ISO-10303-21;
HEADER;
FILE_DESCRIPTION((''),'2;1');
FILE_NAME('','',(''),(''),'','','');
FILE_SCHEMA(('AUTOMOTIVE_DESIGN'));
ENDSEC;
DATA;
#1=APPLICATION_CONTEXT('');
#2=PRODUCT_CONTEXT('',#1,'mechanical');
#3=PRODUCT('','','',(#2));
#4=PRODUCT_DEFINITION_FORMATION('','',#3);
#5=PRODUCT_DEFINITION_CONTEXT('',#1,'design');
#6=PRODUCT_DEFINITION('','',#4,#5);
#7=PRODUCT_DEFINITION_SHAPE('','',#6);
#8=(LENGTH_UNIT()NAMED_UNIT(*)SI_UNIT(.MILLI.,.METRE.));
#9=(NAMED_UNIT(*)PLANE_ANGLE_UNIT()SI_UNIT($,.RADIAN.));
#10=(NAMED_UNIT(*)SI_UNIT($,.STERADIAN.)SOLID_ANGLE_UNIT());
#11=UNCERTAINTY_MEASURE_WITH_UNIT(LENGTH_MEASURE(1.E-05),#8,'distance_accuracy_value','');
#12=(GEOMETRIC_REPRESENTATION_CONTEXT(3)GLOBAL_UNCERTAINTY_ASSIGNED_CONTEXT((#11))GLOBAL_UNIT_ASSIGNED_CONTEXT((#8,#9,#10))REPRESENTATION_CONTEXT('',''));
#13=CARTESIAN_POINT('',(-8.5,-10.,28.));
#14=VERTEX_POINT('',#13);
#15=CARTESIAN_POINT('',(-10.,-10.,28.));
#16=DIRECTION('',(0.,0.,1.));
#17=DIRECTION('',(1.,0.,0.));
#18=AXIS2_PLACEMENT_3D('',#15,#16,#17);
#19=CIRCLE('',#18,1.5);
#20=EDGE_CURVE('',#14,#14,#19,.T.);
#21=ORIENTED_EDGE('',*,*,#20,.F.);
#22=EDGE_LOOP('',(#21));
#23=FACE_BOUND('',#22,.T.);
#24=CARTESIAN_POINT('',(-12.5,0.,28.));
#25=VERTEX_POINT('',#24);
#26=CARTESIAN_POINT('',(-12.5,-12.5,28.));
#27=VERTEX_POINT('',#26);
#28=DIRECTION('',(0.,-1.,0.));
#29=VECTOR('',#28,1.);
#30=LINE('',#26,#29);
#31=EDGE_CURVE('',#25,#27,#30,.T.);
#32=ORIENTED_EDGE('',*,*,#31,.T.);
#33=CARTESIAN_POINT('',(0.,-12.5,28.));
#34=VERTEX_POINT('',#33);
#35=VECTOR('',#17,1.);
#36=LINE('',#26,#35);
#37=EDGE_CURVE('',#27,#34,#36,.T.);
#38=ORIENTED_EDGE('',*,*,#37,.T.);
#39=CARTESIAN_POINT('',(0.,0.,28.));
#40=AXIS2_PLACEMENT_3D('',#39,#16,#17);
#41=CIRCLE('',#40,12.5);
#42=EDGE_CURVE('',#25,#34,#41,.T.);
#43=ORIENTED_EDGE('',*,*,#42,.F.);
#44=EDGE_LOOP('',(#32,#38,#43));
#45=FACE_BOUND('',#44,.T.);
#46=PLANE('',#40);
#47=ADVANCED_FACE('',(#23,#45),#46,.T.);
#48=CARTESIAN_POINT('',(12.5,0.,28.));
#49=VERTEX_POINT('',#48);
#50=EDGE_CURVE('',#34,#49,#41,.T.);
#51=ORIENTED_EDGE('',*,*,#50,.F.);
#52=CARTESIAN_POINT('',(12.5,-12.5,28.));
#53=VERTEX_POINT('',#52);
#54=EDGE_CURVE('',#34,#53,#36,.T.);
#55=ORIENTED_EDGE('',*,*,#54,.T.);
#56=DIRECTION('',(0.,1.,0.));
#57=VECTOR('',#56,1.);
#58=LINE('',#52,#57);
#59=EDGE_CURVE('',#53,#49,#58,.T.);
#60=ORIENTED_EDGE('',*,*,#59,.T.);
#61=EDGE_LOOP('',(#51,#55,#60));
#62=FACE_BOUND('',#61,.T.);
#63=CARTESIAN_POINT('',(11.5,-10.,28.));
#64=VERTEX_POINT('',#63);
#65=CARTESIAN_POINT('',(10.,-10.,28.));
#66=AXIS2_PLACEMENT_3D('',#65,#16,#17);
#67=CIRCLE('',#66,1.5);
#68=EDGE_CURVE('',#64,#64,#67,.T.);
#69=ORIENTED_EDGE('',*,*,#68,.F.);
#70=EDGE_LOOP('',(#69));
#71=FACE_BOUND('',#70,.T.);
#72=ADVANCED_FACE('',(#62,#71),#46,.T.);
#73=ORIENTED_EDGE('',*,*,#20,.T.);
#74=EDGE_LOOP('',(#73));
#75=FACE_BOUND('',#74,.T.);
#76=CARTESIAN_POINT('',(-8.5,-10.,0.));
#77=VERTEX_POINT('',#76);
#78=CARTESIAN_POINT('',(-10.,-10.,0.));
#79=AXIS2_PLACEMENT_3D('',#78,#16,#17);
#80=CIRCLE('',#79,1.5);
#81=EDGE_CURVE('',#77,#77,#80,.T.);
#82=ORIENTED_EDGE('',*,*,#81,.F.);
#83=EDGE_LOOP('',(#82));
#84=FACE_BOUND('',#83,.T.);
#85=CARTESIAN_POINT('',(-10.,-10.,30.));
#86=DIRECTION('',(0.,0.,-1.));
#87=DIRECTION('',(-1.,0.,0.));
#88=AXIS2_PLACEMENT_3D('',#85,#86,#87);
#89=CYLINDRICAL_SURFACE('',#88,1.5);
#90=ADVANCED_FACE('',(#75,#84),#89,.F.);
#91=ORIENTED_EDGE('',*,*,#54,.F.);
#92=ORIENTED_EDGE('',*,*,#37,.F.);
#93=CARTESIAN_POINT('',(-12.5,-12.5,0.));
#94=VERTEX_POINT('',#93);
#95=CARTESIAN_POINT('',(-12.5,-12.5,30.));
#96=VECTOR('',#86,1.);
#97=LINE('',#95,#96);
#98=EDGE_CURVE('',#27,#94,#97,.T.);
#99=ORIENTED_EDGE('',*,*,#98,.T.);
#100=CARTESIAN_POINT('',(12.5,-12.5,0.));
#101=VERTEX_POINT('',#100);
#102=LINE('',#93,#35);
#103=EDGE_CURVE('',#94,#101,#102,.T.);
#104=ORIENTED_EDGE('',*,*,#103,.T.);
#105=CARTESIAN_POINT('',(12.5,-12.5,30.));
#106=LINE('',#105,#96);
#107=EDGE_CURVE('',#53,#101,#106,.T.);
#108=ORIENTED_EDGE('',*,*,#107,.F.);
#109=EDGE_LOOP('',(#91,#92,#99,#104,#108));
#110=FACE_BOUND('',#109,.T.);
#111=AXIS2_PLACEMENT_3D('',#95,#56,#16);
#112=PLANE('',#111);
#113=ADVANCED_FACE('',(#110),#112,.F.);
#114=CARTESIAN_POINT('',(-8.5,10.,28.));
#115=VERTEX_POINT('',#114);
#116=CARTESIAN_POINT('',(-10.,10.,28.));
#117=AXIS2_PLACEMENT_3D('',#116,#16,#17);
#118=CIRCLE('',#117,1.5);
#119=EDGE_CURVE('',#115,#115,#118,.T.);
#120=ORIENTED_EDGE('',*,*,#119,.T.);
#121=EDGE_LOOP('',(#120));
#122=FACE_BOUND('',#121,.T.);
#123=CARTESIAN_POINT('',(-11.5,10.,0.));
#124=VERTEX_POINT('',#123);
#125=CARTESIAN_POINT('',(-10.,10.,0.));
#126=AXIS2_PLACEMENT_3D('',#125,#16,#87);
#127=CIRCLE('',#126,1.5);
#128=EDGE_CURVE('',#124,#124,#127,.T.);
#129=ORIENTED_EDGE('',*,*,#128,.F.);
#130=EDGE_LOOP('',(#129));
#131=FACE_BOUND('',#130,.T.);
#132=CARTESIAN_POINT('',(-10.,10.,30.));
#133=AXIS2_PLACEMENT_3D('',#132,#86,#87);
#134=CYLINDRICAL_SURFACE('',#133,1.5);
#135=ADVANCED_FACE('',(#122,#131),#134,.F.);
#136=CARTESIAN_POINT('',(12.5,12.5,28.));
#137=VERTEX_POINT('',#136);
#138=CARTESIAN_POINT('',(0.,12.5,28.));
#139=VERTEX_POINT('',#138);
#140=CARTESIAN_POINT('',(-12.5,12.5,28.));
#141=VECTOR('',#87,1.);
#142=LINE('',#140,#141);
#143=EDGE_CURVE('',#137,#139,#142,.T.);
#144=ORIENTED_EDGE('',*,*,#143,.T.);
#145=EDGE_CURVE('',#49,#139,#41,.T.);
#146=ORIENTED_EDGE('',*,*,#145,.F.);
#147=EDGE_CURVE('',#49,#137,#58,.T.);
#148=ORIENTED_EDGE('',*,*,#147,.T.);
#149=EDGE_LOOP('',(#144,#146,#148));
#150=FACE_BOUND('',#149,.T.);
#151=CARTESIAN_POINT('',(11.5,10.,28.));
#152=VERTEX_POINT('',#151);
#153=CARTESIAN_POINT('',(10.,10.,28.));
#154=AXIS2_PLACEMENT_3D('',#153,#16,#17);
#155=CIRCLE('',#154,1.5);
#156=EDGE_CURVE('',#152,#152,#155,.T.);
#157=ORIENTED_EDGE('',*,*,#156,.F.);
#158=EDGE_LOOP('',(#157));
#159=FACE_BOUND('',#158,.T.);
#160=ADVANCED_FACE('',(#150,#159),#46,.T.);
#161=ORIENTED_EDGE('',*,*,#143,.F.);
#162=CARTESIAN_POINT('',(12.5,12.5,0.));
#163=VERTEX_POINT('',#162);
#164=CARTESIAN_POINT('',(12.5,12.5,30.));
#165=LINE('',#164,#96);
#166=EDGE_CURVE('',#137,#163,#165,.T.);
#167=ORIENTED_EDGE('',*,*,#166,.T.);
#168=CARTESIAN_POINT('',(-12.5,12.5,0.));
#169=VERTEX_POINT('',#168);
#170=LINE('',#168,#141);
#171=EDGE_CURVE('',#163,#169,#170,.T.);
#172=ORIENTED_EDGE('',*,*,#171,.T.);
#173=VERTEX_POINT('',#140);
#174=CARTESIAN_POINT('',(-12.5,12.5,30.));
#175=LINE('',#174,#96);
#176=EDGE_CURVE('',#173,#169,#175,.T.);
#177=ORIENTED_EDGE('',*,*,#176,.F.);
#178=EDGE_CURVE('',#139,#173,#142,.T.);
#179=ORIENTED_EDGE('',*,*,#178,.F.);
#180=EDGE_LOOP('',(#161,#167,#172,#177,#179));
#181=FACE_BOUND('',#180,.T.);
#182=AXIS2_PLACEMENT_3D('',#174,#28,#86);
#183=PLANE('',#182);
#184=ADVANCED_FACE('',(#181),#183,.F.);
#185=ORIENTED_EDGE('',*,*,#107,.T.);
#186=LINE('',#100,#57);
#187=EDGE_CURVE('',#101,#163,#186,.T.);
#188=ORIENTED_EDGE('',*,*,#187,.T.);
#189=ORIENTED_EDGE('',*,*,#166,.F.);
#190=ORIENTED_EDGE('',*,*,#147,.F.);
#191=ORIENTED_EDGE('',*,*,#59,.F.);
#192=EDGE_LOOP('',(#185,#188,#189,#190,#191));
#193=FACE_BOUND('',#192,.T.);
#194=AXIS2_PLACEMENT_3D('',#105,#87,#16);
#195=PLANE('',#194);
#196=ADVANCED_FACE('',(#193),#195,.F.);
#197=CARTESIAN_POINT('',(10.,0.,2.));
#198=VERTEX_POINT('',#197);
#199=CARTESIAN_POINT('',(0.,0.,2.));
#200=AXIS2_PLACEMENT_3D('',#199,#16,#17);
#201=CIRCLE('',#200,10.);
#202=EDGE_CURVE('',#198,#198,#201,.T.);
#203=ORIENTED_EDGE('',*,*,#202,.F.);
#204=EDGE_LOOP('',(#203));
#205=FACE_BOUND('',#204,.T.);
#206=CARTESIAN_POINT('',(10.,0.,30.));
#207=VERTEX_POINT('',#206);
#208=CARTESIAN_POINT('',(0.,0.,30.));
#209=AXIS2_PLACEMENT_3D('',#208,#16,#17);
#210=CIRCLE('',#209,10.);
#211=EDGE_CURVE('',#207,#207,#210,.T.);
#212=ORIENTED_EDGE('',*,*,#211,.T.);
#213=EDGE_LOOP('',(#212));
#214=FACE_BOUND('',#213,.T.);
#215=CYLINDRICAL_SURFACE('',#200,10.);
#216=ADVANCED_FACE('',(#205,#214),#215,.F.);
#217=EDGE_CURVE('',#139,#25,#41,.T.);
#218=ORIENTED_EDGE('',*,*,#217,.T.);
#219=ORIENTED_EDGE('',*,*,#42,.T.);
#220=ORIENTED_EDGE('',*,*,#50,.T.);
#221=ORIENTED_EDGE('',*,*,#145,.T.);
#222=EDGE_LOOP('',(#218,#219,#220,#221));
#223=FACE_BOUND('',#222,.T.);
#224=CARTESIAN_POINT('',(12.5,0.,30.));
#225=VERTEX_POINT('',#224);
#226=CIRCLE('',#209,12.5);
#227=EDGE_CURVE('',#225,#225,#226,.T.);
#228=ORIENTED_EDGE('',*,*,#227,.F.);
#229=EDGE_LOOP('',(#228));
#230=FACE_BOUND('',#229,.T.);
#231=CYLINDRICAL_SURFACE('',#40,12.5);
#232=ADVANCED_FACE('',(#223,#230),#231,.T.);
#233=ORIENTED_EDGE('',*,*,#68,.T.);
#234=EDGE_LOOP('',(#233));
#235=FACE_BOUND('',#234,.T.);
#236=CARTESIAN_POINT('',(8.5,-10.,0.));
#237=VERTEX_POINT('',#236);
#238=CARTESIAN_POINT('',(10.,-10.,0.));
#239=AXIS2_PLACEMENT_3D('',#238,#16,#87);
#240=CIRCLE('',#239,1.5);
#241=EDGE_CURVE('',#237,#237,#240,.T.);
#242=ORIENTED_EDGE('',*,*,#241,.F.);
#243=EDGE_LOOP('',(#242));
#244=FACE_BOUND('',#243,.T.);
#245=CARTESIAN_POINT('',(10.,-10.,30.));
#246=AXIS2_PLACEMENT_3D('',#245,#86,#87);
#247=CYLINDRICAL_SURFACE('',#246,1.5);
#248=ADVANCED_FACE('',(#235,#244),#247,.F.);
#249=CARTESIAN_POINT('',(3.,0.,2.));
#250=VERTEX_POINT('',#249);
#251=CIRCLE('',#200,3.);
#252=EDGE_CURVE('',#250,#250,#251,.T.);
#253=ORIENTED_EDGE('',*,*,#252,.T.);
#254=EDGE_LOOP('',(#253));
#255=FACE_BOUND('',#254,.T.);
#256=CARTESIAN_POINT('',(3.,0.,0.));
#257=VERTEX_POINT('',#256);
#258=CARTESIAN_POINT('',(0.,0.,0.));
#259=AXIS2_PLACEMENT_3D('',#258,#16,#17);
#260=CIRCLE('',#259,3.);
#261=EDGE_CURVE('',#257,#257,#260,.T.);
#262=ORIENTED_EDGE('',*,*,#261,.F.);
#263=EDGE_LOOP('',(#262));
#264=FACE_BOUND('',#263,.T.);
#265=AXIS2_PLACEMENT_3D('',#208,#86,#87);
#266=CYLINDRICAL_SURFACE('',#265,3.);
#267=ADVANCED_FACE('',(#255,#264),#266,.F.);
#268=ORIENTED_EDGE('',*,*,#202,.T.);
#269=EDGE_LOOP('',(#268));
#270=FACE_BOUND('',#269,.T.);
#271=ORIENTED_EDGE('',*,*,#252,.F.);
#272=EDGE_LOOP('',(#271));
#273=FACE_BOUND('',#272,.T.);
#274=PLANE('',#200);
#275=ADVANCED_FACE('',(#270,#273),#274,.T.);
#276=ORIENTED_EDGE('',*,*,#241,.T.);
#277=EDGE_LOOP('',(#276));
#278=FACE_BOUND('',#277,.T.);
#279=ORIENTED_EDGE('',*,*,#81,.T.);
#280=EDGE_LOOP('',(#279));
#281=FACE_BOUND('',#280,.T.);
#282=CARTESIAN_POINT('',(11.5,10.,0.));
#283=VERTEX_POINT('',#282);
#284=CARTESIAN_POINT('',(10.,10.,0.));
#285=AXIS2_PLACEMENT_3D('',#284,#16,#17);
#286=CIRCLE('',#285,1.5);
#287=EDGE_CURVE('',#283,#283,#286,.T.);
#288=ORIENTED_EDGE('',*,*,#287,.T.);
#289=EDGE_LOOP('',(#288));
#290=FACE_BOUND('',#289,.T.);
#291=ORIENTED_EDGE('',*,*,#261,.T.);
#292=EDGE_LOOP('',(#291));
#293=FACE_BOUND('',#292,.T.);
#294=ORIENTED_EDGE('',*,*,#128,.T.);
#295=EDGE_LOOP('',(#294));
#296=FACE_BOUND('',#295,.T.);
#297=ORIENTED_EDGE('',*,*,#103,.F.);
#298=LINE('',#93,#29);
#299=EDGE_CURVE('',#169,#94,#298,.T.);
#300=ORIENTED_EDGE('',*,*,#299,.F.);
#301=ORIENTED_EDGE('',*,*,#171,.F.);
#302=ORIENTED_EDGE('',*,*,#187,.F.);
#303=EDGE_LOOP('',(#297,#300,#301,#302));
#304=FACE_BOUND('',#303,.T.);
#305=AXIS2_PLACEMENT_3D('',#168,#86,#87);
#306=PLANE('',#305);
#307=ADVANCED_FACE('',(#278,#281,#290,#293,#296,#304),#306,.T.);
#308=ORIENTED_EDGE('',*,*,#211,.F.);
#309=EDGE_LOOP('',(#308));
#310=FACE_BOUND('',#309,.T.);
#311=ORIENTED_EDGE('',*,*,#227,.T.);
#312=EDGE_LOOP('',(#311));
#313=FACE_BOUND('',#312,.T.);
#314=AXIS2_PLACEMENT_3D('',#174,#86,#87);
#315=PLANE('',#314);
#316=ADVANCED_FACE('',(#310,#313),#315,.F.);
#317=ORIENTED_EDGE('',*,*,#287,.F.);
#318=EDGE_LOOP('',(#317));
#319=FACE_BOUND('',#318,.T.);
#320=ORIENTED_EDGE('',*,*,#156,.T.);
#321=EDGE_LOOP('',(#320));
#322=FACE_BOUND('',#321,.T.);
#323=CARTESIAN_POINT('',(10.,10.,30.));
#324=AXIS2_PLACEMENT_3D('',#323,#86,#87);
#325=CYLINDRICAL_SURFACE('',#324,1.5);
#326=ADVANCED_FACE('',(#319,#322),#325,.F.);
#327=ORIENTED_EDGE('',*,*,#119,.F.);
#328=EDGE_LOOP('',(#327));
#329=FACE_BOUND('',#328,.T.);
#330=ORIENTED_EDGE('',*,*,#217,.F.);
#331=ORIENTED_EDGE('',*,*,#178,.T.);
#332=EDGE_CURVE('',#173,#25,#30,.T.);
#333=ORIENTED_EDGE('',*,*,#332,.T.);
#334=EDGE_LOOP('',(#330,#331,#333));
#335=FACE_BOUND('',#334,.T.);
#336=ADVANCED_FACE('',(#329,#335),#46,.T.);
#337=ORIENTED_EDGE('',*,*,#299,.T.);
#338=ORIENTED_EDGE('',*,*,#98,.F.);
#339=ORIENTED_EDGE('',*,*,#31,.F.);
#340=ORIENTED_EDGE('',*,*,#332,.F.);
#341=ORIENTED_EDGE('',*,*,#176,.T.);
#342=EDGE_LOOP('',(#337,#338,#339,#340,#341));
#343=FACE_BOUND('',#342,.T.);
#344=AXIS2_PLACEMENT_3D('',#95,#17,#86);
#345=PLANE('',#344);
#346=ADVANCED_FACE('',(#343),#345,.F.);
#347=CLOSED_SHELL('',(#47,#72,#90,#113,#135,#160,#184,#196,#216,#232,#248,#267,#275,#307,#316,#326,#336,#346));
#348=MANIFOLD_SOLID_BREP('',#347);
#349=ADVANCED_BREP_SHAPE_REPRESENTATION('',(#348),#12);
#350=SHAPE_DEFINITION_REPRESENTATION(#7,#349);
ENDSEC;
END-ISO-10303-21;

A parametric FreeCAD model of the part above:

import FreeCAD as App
import Part
import Sketcher

V = App.Vector
Q = App.Units.Quantity

doc = App.newDocument("Part")
body = doc.addObject("PartDesign::Body", "Body")

sketch1 = body.newObject("Sketcher::SketchObject", "Sketch")
sketch1.AttachmentSupport = (doc.getObject("XY_Plane"), [""])
sketch1.MapMode = "FlatFace"
sketch1.addGeometry([
    Part.LineSegment(V(-12.5, 12.5, 0), V(-12.5, -12.5, 0)),
    Part.LineSegment(V(-12.5, -12.5, 0), V(12.5, -12.5, 0)),
    Part.LineSegment(V(12.5, -12.5, 0), V(12.5, 12.5, 0)),
    Part.LineSegment(V(12.5, 12.5, 0), V(-12.5, 12.5, 0)),
    Part.Circle(V(-10, -10, 0), V(0, 0, 1), 1.5),
    Part.Circle(V(10, -10, 0), V(0, 0, 1), 1.5),
    Part.Circle(V(-10, 10, 0), V(0, 0, 1), 1.5),
    Part.Circle(V(0, 0, 0), V(0, 0, 1), 3),
    Part.Circle(V(10, 10, 0), V(0, 0, 1), 1.5),
], False)
sketch1.addConstraint([
    Sketcher.Constraint("Coincident", 0, 2, 1, 1),
    Sketcher.Constraint("Coincident", 1, 2, 2, 1),
    Sketcher.Constraint("Coincident", 2, 2, 3, 1),
    Sketcher.Constraint("Coincident", 3, 2, 0, 1),
    Sketcher.Constraint("Vertical", 0),
    Sketcher.Constraint("Horizontal", 1),
    Sketcher.Constraint("Vertical", 2),
    Sketcher.Constraint("Horizontal", 3),
    Sketcher.Constraint("Coincident", 7, 3, -1, 1),
    Sketcher.Constraint("Equal", 4, 5),
    Sketcher.Constraint("Equal", 5, 6),
    Sketcher.Constraint("Equal", 6, 8),
    Sketcher.Constraint("Symmetric", 5, 3, 6, 3, -1, 1),
    Sketcher.Constraint("Symmetric", 4, 3, 8, 3, -1, 1),
    Sketcher.Constraint("Symmetric", 0, 2, 2, 2, -1, 1),
    Sketcher.Constraint("Symmetric", 4, 3, 5, 3, -2),
    Sketcher.Constraint("Equal", 3, 0),
    Sketcher.Constraint("Diameter", 4, Q("3 mm")),
    Sketcher.Constraint("Diameter", 7, Q("6 mm")),
    Sketcher.Constraint("DistanceX", 1, 1, 1, 2, Q("25 mm")),
    Sketcher.Constraint("DistanceX", 4, 3, -1, 1, Q("10 mm")),
    Sketcher.Constraint("DistanceY", 4, 3, -1, 1, Q("10 mm")),
])
pad1 = body.newObject("PartDesign::Pad", "Pad")
pad1.Profile = sketch1
pad1.Length = 30

sketch2 = body.newObject("Sketcher::SketchObject", "Sketch001")
sketch2.AttachmentSupport = (doc.getObject("XY_Plane"), [""])
sketch2.MapMode = "FlatFace"
sketch2.AttachmentOffset = App.Placement(V(0, 0, 30), App.Rotation())
sketch2.addGeometry(Part.Circle(V(0, 0, 0), V(0, 0, 1), 10), False)
sketch2.addConstraint([
    Sketcher.Constraint("Coincident", 0, 3, -1, 1),
    Sketcher.Constraint("Diameter", 0, Q("20 mm")),
])
pocket1 = body.newObject("PartDesign::Pocket", "Pocket")
pocket1.Profile = sketch2
pocket1.Length = 28

sketch3 = body.newObject("Sketcher::SketchObject", "Sketch002")
sketch3.AttachmentSupport = (doc.getObject("XY_Plane"), [""])
sketch3.MapMode = "FlatFace"
sketch3.AttachmentOffset = App.Placement(V(0, 0, 30), App.Rotation())
sketch3.addGeometry([
    Part.Circle(V(0, 0, 0), V(0, 0, 1), 18),
    Part.Circle(V(0, 0, 0), V(0, 0, 1), 12),
], False)
sketch3.addConstraint([
    Sketcher.Constraint("Coincident", 0, 3, -1, 1),
    Sketcher.Constraint("Coincident", 1, 3, -1, 1),
    Sketcher.Constraint("Diameter", 1, Q("25 mm")),
    Sketcher.Constraint("Diameter", 0, Q("36.098832 mm")),
])
pocket2 = body.newObject("PartDesign::Pocket", "Pocket001")
pocket2.Profile = sketch3
pocket2.Length = 2

doc.recompute()
